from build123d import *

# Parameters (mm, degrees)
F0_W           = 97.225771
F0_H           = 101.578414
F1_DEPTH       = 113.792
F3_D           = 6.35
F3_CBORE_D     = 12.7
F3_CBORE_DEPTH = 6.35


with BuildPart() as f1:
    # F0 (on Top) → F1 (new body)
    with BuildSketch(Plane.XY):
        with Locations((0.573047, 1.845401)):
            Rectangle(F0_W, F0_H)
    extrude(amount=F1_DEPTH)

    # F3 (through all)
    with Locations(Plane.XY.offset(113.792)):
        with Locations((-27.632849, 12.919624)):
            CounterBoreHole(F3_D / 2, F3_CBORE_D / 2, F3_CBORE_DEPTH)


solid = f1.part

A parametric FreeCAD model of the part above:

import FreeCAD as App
import Part
import Sketcher

V = App.Vector
Q = App.Units.Quantity

doc = App.newDocument("Part")
params = doc.addObject("Spreadsheet::Sheet", "Params")
for row, (alias, value) in enumerate([
    ("pad1_length", "4.48 in"),
    ("sketch2_diameter", "0.25 in"),
    ("hole_diameter", "0.25 in"),
    ("hole_cbore_diameter", "0.5 in"),
    ("hole_cbore_depth", "0.25 in"),
], start=1):
    params.set(f"A{row}", alias)
    params.set(f"B{row}", "=" + value)
    params.setAlias(f"B{row}", alias)

body = doc.addObject("PartDesign::Body", "Body")

sketch1 = body.newObject("Sketcher::SketchObject", "Sketch")
sketch1.AttachmentSupport = (doc.getObject("XY_Plane"), [""])
sketch1.MapMode = "FlatFace"
sketch1.addGeometry([
    Part.LineSegment(V(-48, 53, 0), V(-48, -49, 0)),
    Part.LineSegment(V(-48, -49, 0), V(49, -49, 0)),
    Part.LineSegment(V(49, -49, 0), V(49, 53, 0)),
    Part.LineSegment(V(49, 53, 0), V(-48, 53, 0)),
], False)
sketch1.addConstraint([
    Sketcher.Constraint("Coincident", 0, 2, 1, 1),
    Sketcher.Constraint("Coincident", 1, 2, 2, 1),
    Sketcher.Constraint("Coincident", 2, 2, 3, 1),
    Sketcher.Constraint("Coincident", 3, 2, 0, 1),
    Sketcher.Constraint("Vertical", 0),
    Sketcher.Constraint("Horizontal", 1),
    Sketcher.Constraint("Vertical", 2),
    Sketcher.Constraint("Horizontal", 3),
    Sketcher.Constraint("DistanceX", 1, 1, 1, 2, Q("97.225771 mm")),
    Sketcher.Constraint("DistanceY", 0, 2, 0, 1, Q("101.578414 mm")),
    Sketcher.Constraint("DistanceX", 0, 2, -1, 1, Q("48.039839 mm")),
    Sketcher.Constraint("DistanceY", 0, 2, -1, 1, Q("48.943806 mm")),
])
pad1 = body.newObject("PartDesign::Pad", "Pad")
pad1.Profile = sketch1
pad1.setExpression("Length", "Params.pad1_length")

sketch2 = body.newObject("Sketcher::SketchObject", "Sketch001")
sketch2.AttachmentSupport = (doc.getObject("XY_Plane"), [""])
sketch2.MapMode = "FlatFace"
sketch2.AttachmentOffset = App.Placement(V(0, 0, 4.48 * 25.4), App.Rotation())
sketch2.addGeometry(Part.Circle(V(-27.6, 12.9, 0), V(0, 0, 1), 3.2), False)
sketch2.addConstraint([
    Sketcher.Constraint("Diameter", 0, Q("0.25 in")),
    Sketcher.Constraint("DistanceX", 0, 3, -1, 1, Q("27.632849 mm")),
    Sketcher.Constraint("DistanceY", -1, 1, 0, 3, Q("12.919624 mm")),
])
sketch2.setExpression("Constraints[0]", "Params.sketch2_diameter")
doc.recompute()
hole = body.newObject("PartDesign::Hole", "Hole")
hole.Profile = sketch2
hole.ThreadType = "None"
hole.setExpression("Diameter", "Params.hole_diameter")
hole.DepthType = "ThroughAll"
hole.HoleCutType = "Counterbore"
hole.setExpression("HoleCutDiameter", "Params.hole_cbore_diameter")
hole.setExpression("HoleCutDepth", "Params.hole_cbore_depth")

doc.recompute()
